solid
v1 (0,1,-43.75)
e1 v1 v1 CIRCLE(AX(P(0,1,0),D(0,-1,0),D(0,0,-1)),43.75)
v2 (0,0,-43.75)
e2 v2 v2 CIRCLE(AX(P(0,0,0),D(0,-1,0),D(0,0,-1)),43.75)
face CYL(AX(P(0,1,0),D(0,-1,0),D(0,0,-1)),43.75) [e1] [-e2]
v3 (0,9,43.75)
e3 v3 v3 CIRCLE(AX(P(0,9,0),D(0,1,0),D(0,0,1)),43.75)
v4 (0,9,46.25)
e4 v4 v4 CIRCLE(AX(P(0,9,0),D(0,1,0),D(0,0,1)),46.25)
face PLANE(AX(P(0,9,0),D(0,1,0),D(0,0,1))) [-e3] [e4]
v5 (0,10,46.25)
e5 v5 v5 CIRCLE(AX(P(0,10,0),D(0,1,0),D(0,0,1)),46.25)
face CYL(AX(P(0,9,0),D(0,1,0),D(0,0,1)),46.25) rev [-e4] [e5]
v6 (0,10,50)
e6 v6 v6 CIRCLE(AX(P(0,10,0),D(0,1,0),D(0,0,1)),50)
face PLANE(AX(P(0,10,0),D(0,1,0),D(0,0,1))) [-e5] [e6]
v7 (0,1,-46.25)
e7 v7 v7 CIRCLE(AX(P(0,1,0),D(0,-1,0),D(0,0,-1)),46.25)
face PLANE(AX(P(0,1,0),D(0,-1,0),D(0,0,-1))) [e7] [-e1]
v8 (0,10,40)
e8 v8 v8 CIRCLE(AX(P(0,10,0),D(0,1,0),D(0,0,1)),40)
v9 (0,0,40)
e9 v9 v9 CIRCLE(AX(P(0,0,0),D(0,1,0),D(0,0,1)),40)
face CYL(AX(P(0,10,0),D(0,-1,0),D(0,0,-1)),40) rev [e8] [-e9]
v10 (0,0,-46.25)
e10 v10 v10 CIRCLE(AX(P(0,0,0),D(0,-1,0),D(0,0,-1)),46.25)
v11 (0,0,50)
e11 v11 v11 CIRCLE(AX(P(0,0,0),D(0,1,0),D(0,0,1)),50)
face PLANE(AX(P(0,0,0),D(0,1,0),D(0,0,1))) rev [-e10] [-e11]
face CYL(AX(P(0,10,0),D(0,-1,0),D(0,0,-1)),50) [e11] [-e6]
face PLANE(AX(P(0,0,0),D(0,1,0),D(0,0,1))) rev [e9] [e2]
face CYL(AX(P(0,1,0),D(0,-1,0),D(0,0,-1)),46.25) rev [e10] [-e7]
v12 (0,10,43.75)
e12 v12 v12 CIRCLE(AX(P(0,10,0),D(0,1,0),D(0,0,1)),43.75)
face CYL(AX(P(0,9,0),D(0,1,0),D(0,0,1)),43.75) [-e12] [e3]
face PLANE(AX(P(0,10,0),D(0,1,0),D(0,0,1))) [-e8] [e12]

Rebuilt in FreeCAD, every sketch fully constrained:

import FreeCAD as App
import Part
import Sketcher

doc = App.newDocument("Part")
body = doc.addObject("PartDesign::Body", "Body")

# Sketch on XZ plane
sketch1 = body.newObject("Sketcher::SketchObject", "Sketch")
sketch1.AttachmentSupport = (doc.getObject("XZ_Plane"), [""])
sketch1.MapMode = "FlatFace"
sketch1.addGeometry([
    Part.Circle(App.Vector(0, 0, 0), App.Vector(0, 0, 1), 50),
    Part.Circle(App.Vector(0, 0, 0), App.Vector(0, 0, 1), 40),
], False)
sketch1.addConstraint([
    Sketcher.Constraint("Coincident", 0, 3, -1, 1),
    Sketcher.Constraint("Coincident", 1, 3, -1, 1),
    Sketcher.Constraint("Diameter", 0, 100.0),
    Sketcher.Constraint("Diameter", 1, 80.0),
])
pad1 = body.newObject("PartDesign::Pad", "Pad")
pad1.Profile = sketch1
pad1.Length = 10
pad1.Reversed = True

# Sketch on XZ plane
sketch2 = body.newObject("Sketcher::SketchObject", "Sketch001")
sketch2.AttachmentSupport = (doc.getObject("XZ_Plane"), [""])
sketch2.MapMode = "FlatFace"
sketch2.AttachmentOffset = App.Placement(App.Vector(0, 0, -10), App.Rotation())
sketch2.addGeometry([
    Part.Circle(App.Vector(0, 0, 0), App.Vector(0, 0, 1), 46),
    Part.Circle(App.Vector(0, 0, 0), App.Vector(0, 0, 1), 44),
], False)
sketch2.addConstraint([
    Sketcher.Constraint("Coincident", 0, 3, -1, 1),
    Sketcher.Constraint("Coincident", 1, 3, -1, 1),
    Sketcher.Constraint("Diameter", 0, 92.5),
    Sketcher.Constraint("Diameter", 1, 87.5),
])
pocket1 = body.newObject("PartDesign::Pocket", "Pocket")
pocket1.Profile = sketch2
pocket1.Length = 1
pocket1.Reversed = True

# Sketch on XZ plane
sketch3 = body.newObject("Sketcher::SketchObject", "Sketch002")
sketch3.AttachmentSupport = (doc.getObject("XZ_Plane"), [""])
sketch3.MapMode = "FlatFace"
sketch3.AttachmentOffset = App.Placement(App.Vector(0, 0, -1), App.Rotation())
sketch3.addGeometry([
    Part.Circle(App.Vector(0, 0, 0), App.Vector(0, 0, 1), 46),
    Part.Circle(App.Vector(0, 0, 0), App.Vector(0, 0, 1), 44),
], False)
sketch3.addConstraint([
    Sketcher.Constraint("Coincident", 0, 3, -1, 1),
    Sketcher.Constraint("Coincident", 1, 3, -1, 1),
    Sketcher.Constraint("Diameter", 0, 92.5),
    Sketcher.Constraint("Diameter", 1, 87.5),
])
pocket2 = body.newObject("PartDesign::Pocket", "Pocket001")
pocket2.Profile = sketch3
pocket2.Length = 1
pocket2.Reversed = True

doc.recompute()
